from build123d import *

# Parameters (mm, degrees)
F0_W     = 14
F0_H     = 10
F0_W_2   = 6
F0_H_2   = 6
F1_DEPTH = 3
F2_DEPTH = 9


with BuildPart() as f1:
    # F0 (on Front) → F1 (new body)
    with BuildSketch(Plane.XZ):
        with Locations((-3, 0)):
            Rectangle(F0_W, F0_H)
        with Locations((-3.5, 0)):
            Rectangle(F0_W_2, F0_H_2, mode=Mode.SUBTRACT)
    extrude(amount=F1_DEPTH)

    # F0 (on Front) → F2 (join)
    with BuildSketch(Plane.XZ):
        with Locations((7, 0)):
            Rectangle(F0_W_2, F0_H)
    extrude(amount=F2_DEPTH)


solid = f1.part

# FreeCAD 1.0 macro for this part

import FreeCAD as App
import Part
import Sketcher
from FreeCAD import Vector
Q = App.Units.Quantity


def add_polygon(sketch, points):
    """Adds a closed chain of lines whose ends are joined by coincident constraints."""
    first, n = sketch.GeometryCount, len(points)
    for a, b in zip(points, points[1:] + points[:1]):
        sketch.addGeometry(Part.LineSegment(App.Vector(*a, 0), App.Vector(*b, 0)), False)
    for i in range(n):
        sketch.addConstraint(Sketcher.Constraint("Coincident", first + i, 2, first + (i + 1) % n, 1))

doc = App.newDocument("Part")
body = doc.addObject("PartDesign::Body", "Body")

# Sketch on XZ plane
sketch1 = body.newObject("Sketcher::SketchObject", "Sketch")
sketch1.AttachmentSupport = (doc.getObject("XZ_Plane"), [""])
sketch1.MapMode = "FlatFace"
add_polygon(sketch1, [(-10, 5), (-10, -5), (4, -5), (4, 5)])  # lines 0-3
add_polygon(sketch1, [(-0.5, -3), (-6.5, -3), (-6.5, 3), (-0.5, 3)])  # lines 4-7
sketch1.addConstraint([
    Sketcher.Constraint("Vertical", 0),
    Sketcher.Constraint("Horizontal", 1),
    Sketcher.Constraint("Vertical", 2),
    Sketcher.Constraint("Horizontal", 3),
    Sketcher.Constraint("Horizontal", 4),
    Sketcher.Constraint("Vertical", 5),
    Sketcher.Constraint("Horizontal", 6),
    Sketcher.Constraint("Vertical", 7),
    Sketcher.Constraint("Equal", 6, 5),
    Sketcher.Constraint("DistanceX", 1, 1, 1, 2, Q("14 mm")),
    Sketcher.Constraint("DistanceX", 4, 2, 4, 1, Q("6 mm")),
    Sketcher.Constraint("DistanceY", 0, 2, 0, 1, Q("10 mm")),
    Sketcher.Constraint("DistanceX", 0, 2, -1, 1, Q("10 mm")),
    Sketcher.Constraint("DistanceY", 0, 2, -1, 1, Q("5 mm")),
    Sketcher.Constraint("DistanceY", 4, 2, -1, 1, Q("3 mm")),
    Sketcher.Constraint("DistanceX", 4, 2, -1, 1, Q("6.5 mm")),
])
pad1 = body.newObject("PartDesign::Pad", "Pad")
pad1.Profile = sketch1
pad1.Length = 3

# Sketch on XZ plane
sketch2 = body.newObject("Sketcher::SketchObject", "Sketch001")
sketch2.AttachmentSupport = (doc.getObject("XZ_Plane"), [""])
sketch2.MapMode = "FlatFace"
add_polygon(sketch2, [(4, 5), (4, -5), (10, -5), (10, 5)])  # lines 0-3
sketch2.addConstraint([
    Sketcher.Constraint("Vertical", 0),
    Sketcher.Constraint("Horizontal", 1),
    Sketcher.Constraint("Vertical", 2),
    Sketcher.Constraint("Horizontal", 3),
    Sketcher.Constraint("DistanceX", 1, 1, 1, 2, Q("6 mm")),
    Sketcher.Constraint("DistanceY", 0, 2, 0, 1, Q("10 mm")),
    Sketcher.Constraint("DistanceX", -1, 1, 0, 2, Q("4 mm")),
    Sketcher.Constraint("DistanceY", 0, 2, -1, 1, Q("5 mm")),
])
pad2 = body.newObject("PartDesign::Pad", "Pad001")
pad2.Profile = sketch2
pad2.Length = 9

doc.recompute()
